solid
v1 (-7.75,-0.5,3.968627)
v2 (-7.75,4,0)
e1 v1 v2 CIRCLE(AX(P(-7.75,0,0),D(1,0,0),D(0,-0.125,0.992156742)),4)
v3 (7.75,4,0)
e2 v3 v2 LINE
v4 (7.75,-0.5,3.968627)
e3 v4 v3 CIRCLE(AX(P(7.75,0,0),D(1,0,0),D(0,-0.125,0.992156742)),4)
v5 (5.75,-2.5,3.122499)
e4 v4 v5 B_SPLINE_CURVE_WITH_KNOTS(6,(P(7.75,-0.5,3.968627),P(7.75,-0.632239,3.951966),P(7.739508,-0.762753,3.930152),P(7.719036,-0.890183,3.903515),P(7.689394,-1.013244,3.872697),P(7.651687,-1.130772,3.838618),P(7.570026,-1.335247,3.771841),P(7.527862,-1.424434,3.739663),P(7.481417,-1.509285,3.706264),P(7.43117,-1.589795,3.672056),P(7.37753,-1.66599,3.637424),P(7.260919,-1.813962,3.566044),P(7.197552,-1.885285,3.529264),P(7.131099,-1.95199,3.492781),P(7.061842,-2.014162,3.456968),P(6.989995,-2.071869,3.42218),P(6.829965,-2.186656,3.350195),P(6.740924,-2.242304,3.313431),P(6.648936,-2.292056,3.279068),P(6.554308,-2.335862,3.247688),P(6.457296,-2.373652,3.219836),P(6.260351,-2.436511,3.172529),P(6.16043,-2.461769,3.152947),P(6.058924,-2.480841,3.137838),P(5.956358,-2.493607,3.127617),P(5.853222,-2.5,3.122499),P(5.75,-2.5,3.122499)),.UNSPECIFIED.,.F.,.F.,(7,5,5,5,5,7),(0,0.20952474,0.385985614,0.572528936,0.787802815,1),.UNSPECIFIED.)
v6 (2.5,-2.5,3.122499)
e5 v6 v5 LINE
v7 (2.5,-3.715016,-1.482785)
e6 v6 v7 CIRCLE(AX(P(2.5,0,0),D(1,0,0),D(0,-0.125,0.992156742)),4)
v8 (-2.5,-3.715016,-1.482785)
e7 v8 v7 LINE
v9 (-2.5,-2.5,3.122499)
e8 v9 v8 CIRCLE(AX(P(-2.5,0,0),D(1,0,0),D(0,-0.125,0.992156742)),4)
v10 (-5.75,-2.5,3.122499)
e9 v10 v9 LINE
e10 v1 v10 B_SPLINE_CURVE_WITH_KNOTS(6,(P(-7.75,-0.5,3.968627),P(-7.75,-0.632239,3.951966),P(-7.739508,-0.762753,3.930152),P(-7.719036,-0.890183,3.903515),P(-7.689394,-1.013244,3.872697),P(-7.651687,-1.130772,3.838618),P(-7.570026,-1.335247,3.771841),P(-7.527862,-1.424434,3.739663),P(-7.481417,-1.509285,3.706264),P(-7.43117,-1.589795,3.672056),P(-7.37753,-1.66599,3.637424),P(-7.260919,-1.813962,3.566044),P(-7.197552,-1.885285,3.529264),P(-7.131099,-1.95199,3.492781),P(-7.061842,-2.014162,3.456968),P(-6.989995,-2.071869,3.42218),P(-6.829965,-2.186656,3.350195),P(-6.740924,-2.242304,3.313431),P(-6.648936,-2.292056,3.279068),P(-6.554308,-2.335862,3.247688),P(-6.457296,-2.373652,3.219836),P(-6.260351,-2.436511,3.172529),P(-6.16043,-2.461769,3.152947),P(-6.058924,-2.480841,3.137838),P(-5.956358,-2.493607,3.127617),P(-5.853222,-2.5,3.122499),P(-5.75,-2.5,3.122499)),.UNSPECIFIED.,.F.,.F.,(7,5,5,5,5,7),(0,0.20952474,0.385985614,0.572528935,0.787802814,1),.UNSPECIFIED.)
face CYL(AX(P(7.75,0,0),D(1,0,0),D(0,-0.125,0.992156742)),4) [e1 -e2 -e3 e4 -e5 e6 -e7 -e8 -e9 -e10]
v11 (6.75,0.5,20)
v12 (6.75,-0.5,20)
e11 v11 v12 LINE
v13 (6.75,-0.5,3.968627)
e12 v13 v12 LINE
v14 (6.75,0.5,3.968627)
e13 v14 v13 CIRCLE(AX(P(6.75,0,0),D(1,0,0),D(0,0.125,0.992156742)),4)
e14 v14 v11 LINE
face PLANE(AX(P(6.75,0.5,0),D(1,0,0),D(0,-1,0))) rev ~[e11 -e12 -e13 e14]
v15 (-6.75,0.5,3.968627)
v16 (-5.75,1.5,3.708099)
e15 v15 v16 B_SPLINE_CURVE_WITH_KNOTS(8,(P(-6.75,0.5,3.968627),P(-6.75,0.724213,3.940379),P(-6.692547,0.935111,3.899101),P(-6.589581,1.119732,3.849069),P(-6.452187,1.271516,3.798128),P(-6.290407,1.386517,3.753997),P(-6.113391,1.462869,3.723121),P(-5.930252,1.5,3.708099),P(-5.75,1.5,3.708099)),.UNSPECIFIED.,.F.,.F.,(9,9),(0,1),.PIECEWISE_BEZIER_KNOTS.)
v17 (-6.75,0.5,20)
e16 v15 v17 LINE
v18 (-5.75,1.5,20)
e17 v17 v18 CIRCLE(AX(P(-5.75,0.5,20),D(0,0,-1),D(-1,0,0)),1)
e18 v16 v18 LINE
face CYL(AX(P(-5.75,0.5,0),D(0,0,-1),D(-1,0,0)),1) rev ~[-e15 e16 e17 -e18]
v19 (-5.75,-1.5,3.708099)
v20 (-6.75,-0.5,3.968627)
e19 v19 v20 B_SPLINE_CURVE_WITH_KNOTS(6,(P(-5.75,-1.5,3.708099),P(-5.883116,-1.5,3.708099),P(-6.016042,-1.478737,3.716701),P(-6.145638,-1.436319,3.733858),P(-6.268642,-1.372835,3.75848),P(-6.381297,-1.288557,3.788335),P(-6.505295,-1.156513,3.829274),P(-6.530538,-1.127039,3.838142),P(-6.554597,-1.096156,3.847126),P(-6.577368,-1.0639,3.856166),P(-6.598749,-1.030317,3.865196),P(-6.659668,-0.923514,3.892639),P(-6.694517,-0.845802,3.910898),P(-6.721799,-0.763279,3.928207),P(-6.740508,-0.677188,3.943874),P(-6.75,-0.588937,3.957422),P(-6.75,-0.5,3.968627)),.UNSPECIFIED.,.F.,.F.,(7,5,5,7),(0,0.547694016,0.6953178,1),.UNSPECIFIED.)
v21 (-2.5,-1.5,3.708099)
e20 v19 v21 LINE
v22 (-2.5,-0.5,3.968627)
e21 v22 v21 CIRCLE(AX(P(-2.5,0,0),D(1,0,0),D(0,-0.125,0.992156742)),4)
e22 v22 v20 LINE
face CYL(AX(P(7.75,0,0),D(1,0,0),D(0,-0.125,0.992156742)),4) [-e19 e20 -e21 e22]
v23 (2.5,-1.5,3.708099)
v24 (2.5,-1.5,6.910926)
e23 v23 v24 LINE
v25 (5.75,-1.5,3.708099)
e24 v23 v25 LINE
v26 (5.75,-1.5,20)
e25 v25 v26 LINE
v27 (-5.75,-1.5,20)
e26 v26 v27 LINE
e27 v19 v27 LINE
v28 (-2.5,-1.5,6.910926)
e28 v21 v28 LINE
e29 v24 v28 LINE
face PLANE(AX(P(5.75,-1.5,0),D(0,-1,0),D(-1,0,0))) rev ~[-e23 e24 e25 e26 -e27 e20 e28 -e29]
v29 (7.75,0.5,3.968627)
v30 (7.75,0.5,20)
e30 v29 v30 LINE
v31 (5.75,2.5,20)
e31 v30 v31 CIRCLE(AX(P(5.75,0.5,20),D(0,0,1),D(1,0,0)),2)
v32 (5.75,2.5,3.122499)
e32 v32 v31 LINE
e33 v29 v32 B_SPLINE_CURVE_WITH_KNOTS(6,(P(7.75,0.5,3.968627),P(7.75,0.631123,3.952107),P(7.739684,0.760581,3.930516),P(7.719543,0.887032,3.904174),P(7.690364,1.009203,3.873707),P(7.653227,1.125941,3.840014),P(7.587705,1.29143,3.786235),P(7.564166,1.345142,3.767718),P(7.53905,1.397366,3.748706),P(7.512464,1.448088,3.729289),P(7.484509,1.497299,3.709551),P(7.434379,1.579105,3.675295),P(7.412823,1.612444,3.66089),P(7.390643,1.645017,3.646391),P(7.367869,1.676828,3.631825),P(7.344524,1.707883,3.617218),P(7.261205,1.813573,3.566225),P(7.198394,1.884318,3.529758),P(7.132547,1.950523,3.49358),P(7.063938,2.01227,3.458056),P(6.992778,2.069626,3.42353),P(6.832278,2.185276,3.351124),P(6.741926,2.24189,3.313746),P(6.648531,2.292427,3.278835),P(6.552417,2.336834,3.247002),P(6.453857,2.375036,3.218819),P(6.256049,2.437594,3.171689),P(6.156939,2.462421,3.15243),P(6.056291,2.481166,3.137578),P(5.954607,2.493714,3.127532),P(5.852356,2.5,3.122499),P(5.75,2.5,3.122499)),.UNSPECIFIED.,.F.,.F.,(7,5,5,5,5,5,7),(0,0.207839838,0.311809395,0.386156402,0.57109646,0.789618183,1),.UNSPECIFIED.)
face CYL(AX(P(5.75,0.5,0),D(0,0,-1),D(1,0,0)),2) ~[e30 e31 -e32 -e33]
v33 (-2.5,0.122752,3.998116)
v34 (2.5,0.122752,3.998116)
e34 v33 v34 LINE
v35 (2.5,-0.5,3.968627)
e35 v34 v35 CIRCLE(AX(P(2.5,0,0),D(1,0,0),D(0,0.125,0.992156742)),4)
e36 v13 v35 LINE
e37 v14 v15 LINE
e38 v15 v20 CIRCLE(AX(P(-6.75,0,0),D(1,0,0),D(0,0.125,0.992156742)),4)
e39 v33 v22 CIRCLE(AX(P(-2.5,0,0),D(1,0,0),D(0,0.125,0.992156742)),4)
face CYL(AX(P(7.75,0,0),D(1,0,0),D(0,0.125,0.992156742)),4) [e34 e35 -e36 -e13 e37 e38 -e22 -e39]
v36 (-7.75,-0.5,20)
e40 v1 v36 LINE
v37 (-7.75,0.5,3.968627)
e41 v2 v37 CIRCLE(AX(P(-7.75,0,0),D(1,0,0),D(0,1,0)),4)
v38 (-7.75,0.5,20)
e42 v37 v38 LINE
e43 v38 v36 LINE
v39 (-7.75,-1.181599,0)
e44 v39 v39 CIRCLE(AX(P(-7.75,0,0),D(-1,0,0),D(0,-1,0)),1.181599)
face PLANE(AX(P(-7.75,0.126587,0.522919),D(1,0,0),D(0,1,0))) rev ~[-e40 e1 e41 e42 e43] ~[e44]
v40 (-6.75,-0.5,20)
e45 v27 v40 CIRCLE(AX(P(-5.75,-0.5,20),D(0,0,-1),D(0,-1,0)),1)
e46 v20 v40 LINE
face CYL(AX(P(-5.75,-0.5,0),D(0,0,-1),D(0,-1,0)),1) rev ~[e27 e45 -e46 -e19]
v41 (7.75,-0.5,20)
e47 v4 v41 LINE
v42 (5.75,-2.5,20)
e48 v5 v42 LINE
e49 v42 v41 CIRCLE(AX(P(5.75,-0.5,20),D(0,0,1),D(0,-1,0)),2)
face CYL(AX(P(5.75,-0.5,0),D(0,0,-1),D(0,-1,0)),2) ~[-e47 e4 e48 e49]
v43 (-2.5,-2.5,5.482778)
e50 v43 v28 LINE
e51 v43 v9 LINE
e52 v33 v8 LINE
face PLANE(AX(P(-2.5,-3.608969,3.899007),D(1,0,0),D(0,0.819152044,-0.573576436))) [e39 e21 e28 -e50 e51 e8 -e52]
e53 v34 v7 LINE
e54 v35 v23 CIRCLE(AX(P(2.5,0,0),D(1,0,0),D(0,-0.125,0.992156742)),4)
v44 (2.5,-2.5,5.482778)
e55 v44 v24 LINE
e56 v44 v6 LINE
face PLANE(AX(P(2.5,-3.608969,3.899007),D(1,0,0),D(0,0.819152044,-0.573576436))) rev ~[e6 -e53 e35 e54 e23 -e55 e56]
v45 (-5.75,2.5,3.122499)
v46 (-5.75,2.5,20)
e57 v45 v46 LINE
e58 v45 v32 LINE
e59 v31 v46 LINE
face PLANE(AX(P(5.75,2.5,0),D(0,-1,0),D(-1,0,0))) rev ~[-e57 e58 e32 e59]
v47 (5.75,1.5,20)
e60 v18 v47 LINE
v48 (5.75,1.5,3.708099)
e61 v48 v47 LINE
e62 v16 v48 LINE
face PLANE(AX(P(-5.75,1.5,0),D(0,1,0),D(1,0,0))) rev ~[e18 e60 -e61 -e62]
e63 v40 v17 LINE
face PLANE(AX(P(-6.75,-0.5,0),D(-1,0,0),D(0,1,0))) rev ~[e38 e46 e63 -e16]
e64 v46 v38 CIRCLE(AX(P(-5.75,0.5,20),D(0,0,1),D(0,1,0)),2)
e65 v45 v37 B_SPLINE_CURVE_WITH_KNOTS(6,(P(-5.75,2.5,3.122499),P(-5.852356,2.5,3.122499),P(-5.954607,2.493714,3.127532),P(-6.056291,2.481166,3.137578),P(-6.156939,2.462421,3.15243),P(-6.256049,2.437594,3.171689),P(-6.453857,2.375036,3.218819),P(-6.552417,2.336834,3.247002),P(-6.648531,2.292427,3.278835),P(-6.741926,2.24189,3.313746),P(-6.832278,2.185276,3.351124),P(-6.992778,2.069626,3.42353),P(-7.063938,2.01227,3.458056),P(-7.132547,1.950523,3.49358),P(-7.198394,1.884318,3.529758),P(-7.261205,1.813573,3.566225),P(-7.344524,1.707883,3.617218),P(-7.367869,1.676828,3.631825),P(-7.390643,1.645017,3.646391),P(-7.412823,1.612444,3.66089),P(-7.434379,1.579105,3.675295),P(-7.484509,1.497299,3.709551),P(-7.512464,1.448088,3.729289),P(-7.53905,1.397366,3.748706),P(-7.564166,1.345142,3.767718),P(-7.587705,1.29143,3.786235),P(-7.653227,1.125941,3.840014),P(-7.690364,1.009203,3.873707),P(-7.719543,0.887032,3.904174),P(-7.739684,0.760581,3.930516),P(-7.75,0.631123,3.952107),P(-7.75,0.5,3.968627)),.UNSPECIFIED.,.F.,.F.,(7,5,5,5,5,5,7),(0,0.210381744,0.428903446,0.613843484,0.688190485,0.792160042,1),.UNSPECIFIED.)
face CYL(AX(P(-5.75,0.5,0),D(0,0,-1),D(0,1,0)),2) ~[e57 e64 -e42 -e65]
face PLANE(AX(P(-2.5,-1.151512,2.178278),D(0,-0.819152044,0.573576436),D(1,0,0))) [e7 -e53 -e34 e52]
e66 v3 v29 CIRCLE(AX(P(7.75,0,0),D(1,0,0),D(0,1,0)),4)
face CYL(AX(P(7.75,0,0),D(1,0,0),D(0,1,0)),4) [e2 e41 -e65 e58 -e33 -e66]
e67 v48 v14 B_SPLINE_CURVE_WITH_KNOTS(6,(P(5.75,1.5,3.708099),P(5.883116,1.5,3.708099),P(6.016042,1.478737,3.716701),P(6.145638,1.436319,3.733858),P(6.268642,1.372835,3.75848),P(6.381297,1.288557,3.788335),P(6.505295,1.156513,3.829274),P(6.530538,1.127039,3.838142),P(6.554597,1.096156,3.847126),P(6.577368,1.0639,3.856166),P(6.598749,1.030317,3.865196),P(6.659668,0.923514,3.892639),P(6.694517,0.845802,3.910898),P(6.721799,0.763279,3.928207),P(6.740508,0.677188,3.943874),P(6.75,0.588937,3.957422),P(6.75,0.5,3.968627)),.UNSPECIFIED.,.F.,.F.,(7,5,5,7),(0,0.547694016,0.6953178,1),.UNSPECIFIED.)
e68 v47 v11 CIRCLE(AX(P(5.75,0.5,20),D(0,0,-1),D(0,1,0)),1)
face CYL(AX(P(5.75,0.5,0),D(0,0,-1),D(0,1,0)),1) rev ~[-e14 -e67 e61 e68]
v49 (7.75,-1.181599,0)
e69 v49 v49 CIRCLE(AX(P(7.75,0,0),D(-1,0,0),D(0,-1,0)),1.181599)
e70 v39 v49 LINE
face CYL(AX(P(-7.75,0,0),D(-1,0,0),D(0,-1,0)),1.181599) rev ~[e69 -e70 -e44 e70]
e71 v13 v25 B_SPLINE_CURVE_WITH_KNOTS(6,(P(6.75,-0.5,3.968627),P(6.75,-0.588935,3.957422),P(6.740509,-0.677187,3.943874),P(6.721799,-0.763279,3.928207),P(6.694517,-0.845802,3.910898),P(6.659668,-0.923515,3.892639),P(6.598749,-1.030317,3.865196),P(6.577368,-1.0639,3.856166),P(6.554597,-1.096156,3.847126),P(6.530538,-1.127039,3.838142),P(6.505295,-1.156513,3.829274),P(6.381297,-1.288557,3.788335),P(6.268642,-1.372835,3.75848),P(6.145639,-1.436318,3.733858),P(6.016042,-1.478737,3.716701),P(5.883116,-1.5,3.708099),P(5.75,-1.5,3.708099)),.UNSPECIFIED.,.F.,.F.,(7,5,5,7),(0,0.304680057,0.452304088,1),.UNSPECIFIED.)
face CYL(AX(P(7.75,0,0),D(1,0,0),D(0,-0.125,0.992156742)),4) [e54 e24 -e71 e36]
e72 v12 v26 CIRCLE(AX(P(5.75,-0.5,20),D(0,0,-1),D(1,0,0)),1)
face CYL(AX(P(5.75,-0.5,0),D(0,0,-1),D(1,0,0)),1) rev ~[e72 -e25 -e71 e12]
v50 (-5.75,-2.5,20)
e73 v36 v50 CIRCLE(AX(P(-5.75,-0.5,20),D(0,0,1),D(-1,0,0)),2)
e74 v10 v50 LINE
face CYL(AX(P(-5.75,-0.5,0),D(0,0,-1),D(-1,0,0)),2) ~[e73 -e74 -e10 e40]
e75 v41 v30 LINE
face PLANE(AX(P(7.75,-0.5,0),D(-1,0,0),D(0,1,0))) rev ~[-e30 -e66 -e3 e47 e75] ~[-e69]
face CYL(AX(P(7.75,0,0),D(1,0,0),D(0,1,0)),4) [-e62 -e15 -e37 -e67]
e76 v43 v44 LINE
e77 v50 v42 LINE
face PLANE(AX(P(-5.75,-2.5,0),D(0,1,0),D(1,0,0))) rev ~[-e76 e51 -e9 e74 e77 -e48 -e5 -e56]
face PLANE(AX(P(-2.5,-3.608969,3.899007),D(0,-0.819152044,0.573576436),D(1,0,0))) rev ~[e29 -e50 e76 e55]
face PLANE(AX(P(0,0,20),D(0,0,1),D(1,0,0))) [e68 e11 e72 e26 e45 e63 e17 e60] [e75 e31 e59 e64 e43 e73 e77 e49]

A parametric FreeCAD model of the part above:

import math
import FreeCAD as App
import Part
import Sketcher
Q = App.Units.Quantity


def add_polygon(sketch, points):
    """Adds a closed chain of lines whose ends are joined by coincident constraints."""
    first, n = sketch.GeometryCount, len(points)
    for a, b in zip(points, points[1:] + points[:1]):
        sketch.addGeometry(Part.LineSegment(App.Vector(*a, 0), App.Vector(*b, 0)), False)
    for i in range(n):
        sketch.addConstraint(Sketcher.Constraint("Coincident", first + i, 2, first + (i + 1) % n, 1))

doc = App.newDocument("Part")
body = doc.addObject("PartDesign::Body", "Body")

sketch1 = doc.addObject("Sketcher::SketchObject", "Sketch")
body.addObject(sketch1)
sketch1.AttachmentSupport = (doc.XY_Plane, [""])
sketch1.MapMode = "FlatFace"
sketch1.addGeometry(Part.LineSegment(App.Vector(5.75, 2.5, 0), App.Vector(-5.75, 2.5, 0)), False)
sketch1.addGeometry(Part.ArcOfCircle(Part.Circle(App.Vector(-5.75, 0.5, 0), App.Vector(0, 0, 1), 2), math.radians(90), math.radians(180)), False)
sketch1.addGeometry(Part.LineSegment(App.Vector(-7.75, 0.5, 0), App.Vector(-7.75, -0.5, 0)), False)
sketch1.addGeometry(Part.ArcOfCircle(Part.Circle(App.Vector(-5.75, -0.5, 0), App.Vector(0, 0, 1), 2), math.radians(180), math.radians(270)), False)
sketch1.addGeometry(Part.LineSegment(App.Vector(-5.75, -2.5, 0), App.Vector(5.75, -2.5, 0)), False)
sketch1.addGeometry(Part.ArcOfCircle(Part.Circle(App.Vector(5.75, -0.5, 0), App.Vector(0, 0, 1), 2), math.radians(-90), math.radians(0)), False)
sketch1.addGeometry(Part.LineSegment(App.Vector(7.75, -0.5, 0), App.Vector(7.75, 0.5, 0)), False)
sketch1.addGeometry(Part.ArcOfCircle(Part.Circle(App.Vector(5.75, 0.5, 0), App.Vector(0, 0, 1), 2), math.radians(0), math.radians(90)), False)
sketch1.addGeometry(Part.LineSegment(App.Vector(-6.75, -0.5, 0), App.Vector(-6.75, 0.5, 0)), False)
sketch1.addGeometry(Part.ArcOfCircle(Part.Circle(App.Vector(-5.75, 0.5, 0), App.Vector(0, 0, 1), 1), math.radians(90), math.radians(180)), False)
sketch1.addGeometry(Part.LineSegment(App.Vector(-5.75, 1.5, 0), App.Vector(5.75, 1.5, 0)), False)
sketch1.addGeometry(Part.ArcOfCircle(Part.Circle(App.Vector(5.75, 0.5, 0), App.Vector(0, 0, 1), 1), math.radians(0), math.radians(90)), False)
sketch1.addGeometry(Part.LineSegment(App.Vector(6.75, 0.5, 0), App.Vector(6.75, -0.5, 0)), False)
sketch1.addGeometry(Part.ArcOfCircle(Part.Circle(App.Vector(5.75, -0.5, 0), App.Vector(0, 0, 1), 1), math.radians(-90), math.radians(0)), False)
sketch1.addGeometry(Part.LineSegment(App.Vector(5.75, -1.5, 0), App.Vector(-5.75, -1.5, 0)), False)
sketch1.addGeometry(Part.ArcOfCircle(Part.Circle(App.Vector(-5.75, -0.5, 0), App.Vector(0, 0, 1), 1), math.radians(180), math.radians(270)), False)
sketch1.addConstraint(Sketcher.Constraint("Tangent", 0, 2, 1, 1))
sketch1.addConstraint(Sketcher.Constraint("Tangent", 1, 2, 2, 1))
sketch1.addConstraint(Sketcher.Constraint("Tangent", 2, 2, 3, 1))
sketch1.addConstraint(Sketcher.Constraint("Tangent", 3, 2, 4, 1))
sketch1.addConstraint(Sketcher.Constraint("Tangent", 4, 2, 5, 1))
sketch1.addConstraint(Sketcher.Constraint("Tangent", 5, 2, 6, 1))
sketch1.addConstraint(Sketcher.Constraint("Tangent", 6, 2, 7, 1))
sketch1.addConstraint(Sketcher.Constraint("Tangent", 7, 2, 0, 1))
sketch1.addConstraint(Sketcher.Constraint("Tangent", 8, 2, 9, 2))
sketch1.addConstraint(Sketcher.Constraint("Tangent", 9, 1, 10, 1))
sketch1.addConstraint(Sketcher.Constraint("Tangent", 10, 2, 11, 2))
sketch1.addConstraint(Sketcher.Constraint("Tangent", 11, 1, 12, 1))
sketch1.addConstraint(Sketcher.Constraint("Tangent", 12, 2, 13, 2))
sketch1.addConstraint(Sketcher.Constraint("Tangent", 13, 1, 14, 1))
sketch1.addConstraint(Sketcher.Constraint("Tangent", 14, 2, 15, 2))
sketch1.addConstraint(Sketcher.Constraint("Tangent", 15, 1, 8, 1))
sketch1.addConstraint(Sketcher.Constraint("Horizontal", 0))
sketch1.addConstraint(Sketcher.Constraint("Vertical", 2))
sketch1.addConstraint(Sketcher.Constraint("Horizontal", 4))
sketch1.addConstraint(Sketcher.Constraint("Vertical", 6))
sketch1.addConstraint(Sketcher.Constraint("Vertical", 8))
sketch1.addConstraint(Sketcher.Constraint("Horizontal", 10))
sketch1.addConstraint(Sketcher.Constraint("Vertical", 12))
sketch1.addConstraint(Sketcher.Constraint("Horizontal", 14))
sketch1.addConstraint(Sketcher.Constraint("Coincident", 9, 3, 1, 3))
sketch1.addConstraint(Sketcher.Constraint("Coincident", 11, 3, 7, 3))
sketch1.addConstraint(Sketcher.Constraint("Coincident", 13, 3, 5, 3))
sketch1.addConstraint(Sketcher.Constraint("Equal", 1, 3))
sketch1.addConstraint(Sketcher.Constraint("Equal", 3, 5))
sketch1.addConstraint(Sketcher.Constraint("Equal", 5, 7))
sketch1.addConstraint(Sketcher.Constraint("Equal", 13, 15))
sketch1.addConstraint(Sketcher.Constraint("Symmetric", 1, 3, 5, 3, -1, 1))
sketch1.addConstraint(Sketcher.Constraint("Radius", 1, Q("2 mm")))
sketch1.addConstraint(Sketcher.Constraint("Radius", 9, Q("1 mm")))
sketch1.addConstraint(Sketcher.Constraint("DistanceY", 2, 2, 2, 1, Q("1 mm")))
sketch1.addConstraint(Sketcher.Constraint("DistanceX", 0, 2, 0, 1, Q("11.5 mm")))
pad1 = doc.addObject("PartDesign::Pad", "Pad")
body.addObject(pad1)
pad1.Profile = sketch1
pad1.Length = 20

sketch2 = doc.addObject("Sketcher::SketchObject", "Sketch001")
body.addObject(sketch2)
sketch2.AttachmentSupport = (doc.YZ_Plane, [""])
sketch2.MapMode = "FlatFace"
sketch2.AttachmentOffset = App.Placement(App.Vector(0, 0, 7.75), App.Rotation())
sketch2.addGeometry(Part.ArcOfCircle(Part.Circle(App.Vector(0, 0, 0), App.Vector(0, 0, 1), 4), math.radians(97.180756), math.radians(360)), False)
sketch2.addGeometry(Part.ArcOfCircle(Part.Circle(App.Vector(0, 0, 0), App.Vector(0, 0, 1), 4), math.radians(0), math.radians(82.819244)), False)
sketch2.addGeometry(Part.ArcOfCircle(Part.Circle(App.Vector(0, 0, 0), App.Vector(0, 0, 1), 4), math.radians(82.819244), math.radians(97.180756)), False)
sketch2.addConstraint(Sketcher.Constraint("Tangent", 0, 2, 1, 1))
sketch2.addConstraint(Sketcher.Constraint("Tangent", 1, 2, 2, 1))
sketch2.addConstraint(Sketcher.Constraint("Tangent", 2, 2, 0, 1))
sketch2.addConstraint(Sketcher.Constraint("Coincident", 0, 3, -1, 1))
sketch2.addConstraint(Sketcher.Constraint("PointOnObject", 0, 2, -1))
sketch2.addConstraint(Sketcher.Constraint("Horizontal", 1, 2, 2, 2))
sketch2.addConstraint(Sketcher.Constraint("Radius", 0, Q("4 mm")))
sketch2.addConstraint(Sketcher.Constraint("DistanceX", 2, 2, 1, 2, Q("1 mm")))
pad2 = doc.addObject("PartDesign::Pad", "Pad001")
body.addObject(pad2)
pad2.Profile = sketch2
pad2.Length = 15.5
pad2.Reversed = True

sketch3 = doc.addObject("Sketcher::SketchObject", "Sketch002")
body.addObject(sketch3)
sketch3.Placement = App.Placement(App.Vector(0, 0.64462, 0.920613), App.Rotation(App.Vector(1, 0, 0), App.Vector(0, 0.819152044, -0.573576436), App.Vector(0, 0.573576436, 0.819152044), "ZXY"))
add_polygon(sketch3, [(-2.5, -2.192673), (-2.5, -5.192673), (2.5, -5.192673), (2.5, -2.192673)])
sketch3.addConstraint(Sketcher.Constraint("Vertical", 0))
sketch3.addConstraint(Sketcher.Constraint("Horizontal", 1))
sketch3.addConstraint(Sketcher.Constraint("Vertical", 2))
sketch3.addConstraint(Sketcher.Constraint("Horizontal", 3))
sketch3.addConstraint(Sketcher.Constraint("DistanceX", 1, 1, 1, 2, Q("5 mm")))
sketch3.addConstraint(Sketcher.Constraint("DistanceY", 0, 2, 0, 1, Q("3 mm")))
sketch3.addConstraint(Sketcher.Constraint("DistanceX", 0, 2, -1, 1, Q("2.5 mm")))
sketch3.addConstraint(Sketcher.Constraint("DistanceY", 0, 2, -1, 1, Q("5.192673 mm")))
pocket1 = doc.addObject("PartDesign::Pocket", "Pocket")
body.addObject(pocket1)
pocket1.Profile = sketch3
pocket1.Length = 9
pocket1.Midplane = True

sketch4 = doc.addObject("Sketcher::SketchObject", "Sketch003")
body.addObject(sketch4)
sketch4.AttachmentSupport = (doc.YZ_Plane, [""])
sketch4.MapMode = "FlatFace"
sketch4.AttachmentOffset = App.Placement(App.Vector(0, 0, -7.75), App.Rotation())
sketch4.addGeometry(Part.Circle(App.Vector(0, 0, 0), App.Vector(0, 0, 1), 1.181599), False)
sketch4.addConstraint(Sketcher.Constraint("Coincident", 0, 3, -1, 1))
sketch4.addConstraint(Sketcher.Constraint("Diameter", 0, Q("2.363197 mm")))
pocket2 = doc.addObject("PartDesign::Pocket", "Pocket001")
body.addObject(pocket2)
pocket2.Profile = sketch4
pocket2.Length = 25
pocket2.Reversed = True

doc.recompute()
